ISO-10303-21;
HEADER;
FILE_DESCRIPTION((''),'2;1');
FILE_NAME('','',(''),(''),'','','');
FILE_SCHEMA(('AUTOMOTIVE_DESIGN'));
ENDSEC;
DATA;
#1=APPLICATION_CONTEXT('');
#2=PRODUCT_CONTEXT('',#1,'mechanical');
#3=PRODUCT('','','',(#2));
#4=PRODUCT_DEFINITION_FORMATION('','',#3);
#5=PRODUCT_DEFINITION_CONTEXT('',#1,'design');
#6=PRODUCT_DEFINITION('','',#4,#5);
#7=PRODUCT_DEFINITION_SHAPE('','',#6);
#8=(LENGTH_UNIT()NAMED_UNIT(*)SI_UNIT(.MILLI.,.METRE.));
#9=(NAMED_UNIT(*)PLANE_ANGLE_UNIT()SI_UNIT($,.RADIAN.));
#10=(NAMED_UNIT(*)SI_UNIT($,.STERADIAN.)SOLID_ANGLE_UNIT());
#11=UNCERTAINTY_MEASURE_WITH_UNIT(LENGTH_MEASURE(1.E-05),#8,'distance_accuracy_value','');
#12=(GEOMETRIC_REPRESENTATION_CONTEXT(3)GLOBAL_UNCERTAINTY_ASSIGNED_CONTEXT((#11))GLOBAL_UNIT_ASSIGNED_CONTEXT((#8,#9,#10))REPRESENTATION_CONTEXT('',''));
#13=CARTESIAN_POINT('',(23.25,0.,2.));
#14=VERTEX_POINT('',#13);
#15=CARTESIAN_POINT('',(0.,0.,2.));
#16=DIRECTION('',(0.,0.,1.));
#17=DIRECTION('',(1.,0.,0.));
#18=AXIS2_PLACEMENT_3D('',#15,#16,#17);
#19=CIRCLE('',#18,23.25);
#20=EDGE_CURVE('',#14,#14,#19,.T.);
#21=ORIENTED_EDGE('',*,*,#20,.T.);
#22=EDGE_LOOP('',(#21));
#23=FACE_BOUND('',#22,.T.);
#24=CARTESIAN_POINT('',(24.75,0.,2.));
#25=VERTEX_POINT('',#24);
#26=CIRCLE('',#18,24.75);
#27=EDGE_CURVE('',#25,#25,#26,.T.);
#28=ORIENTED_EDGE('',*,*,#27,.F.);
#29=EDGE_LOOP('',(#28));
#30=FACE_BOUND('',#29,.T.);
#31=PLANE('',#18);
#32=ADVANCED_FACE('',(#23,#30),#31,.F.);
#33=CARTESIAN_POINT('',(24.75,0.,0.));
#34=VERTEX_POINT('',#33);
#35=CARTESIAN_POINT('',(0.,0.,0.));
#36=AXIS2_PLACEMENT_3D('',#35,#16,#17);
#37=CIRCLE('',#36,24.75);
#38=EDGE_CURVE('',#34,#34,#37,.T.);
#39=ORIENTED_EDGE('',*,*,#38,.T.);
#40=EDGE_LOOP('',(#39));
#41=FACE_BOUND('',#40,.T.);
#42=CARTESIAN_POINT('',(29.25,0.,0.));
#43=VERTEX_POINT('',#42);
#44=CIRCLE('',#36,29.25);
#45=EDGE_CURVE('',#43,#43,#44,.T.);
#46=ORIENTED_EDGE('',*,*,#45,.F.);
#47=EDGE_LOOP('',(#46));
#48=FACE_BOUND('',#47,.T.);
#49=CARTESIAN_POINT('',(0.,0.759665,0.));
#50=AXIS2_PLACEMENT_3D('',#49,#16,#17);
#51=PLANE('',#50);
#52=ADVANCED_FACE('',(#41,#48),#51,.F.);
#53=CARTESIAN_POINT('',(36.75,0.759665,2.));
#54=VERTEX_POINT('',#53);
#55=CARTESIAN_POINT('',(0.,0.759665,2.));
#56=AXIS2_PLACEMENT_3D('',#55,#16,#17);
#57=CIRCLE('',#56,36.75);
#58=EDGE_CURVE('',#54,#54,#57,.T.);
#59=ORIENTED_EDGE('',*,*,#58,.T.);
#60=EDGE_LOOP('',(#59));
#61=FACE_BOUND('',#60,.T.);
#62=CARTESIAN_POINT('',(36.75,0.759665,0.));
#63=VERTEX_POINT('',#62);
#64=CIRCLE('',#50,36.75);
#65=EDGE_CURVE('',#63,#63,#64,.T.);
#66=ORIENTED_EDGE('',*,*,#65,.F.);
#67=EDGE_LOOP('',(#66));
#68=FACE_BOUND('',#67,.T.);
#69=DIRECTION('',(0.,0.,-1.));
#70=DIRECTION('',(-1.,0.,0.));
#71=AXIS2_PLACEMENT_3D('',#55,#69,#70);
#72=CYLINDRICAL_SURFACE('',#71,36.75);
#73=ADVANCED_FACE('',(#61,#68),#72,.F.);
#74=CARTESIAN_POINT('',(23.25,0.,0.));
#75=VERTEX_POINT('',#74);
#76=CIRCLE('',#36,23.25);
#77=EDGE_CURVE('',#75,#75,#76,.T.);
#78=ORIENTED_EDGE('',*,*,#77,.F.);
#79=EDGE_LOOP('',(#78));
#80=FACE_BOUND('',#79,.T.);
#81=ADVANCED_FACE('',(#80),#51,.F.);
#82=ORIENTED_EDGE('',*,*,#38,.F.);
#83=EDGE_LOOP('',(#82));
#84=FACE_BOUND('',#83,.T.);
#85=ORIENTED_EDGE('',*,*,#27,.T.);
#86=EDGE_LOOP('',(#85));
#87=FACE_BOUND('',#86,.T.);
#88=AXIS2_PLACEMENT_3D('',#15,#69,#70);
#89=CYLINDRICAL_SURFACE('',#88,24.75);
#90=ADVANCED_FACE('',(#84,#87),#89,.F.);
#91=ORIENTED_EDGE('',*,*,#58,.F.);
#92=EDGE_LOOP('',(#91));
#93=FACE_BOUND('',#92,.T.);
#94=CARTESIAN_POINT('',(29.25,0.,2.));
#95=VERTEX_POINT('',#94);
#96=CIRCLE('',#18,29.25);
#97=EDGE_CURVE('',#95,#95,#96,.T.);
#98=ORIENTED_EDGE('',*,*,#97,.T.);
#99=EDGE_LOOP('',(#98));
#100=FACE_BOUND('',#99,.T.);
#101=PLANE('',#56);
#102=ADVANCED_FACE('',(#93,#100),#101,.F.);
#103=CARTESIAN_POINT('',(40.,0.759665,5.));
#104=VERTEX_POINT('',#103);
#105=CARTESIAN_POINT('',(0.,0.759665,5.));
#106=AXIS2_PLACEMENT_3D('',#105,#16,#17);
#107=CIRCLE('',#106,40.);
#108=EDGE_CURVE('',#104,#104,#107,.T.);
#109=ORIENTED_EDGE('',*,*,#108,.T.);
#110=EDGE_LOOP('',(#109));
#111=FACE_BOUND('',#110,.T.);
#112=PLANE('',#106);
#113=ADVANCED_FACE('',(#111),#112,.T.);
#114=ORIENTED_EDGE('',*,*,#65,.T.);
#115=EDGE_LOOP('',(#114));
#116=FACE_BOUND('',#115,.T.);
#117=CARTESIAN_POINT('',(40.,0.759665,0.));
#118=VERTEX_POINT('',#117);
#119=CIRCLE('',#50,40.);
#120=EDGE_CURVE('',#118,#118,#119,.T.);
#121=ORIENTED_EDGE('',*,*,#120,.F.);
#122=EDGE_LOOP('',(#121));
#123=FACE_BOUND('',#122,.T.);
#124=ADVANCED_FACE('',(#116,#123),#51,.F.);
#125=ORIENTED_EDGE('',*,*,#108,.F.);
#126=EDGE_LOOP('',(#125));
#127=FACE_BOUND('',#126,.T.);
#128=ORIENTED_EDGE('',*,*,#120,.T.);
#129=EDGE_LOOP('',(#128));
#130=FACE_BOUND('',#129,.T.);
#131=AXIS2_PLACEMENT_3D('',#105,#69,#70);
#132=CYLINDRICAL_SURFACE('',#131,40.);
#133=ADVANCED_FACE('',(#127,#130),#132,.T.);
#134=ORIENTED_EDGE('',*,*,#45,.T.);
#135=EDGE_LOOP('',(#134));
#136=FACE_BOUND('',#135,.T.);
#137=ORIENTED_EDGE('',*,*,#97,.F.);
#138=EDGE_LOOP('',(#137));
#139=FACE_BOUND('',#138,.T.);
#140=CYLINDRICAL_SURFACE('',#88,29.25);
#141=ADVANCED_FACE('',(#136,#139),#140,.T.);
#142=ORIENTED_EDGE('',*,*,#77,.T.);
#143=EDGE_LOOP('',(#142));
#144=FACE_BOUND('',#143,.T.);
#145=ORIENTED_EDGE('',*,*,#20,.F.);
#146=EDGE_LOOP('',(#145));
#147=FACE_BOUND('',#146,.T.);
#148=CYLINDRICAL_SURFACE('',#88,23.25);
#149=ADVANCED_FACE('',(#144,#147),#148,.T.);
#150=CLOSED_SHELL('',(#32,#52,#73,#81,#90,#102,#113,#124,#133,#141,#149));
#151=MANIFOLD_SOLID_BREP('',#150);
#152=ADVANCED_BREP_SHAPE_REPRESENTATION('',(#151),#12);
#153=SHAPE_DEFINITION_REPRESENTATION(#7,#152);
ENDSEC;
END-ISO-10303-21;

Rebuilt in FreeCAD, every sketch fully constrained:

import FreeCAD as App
import Part
import Sketcher
Q = App.Units.Quantity

doc = App.newDocument("Part")
params = doc.addObject("Spreadsheet::Sheet", "Params")
for row, (alias, value) in enumerate([
    ("sketch1_diameter", "80 mm"),
    ("pad1_length", "5 mm"),
    ("sketch2_diameter", "73.5 mm"),
    ("sketch2_diameter2", "58.5 mm"),
    ("sketch2_diameter3", "49.5 mm"),
    ("sketch2_diameter4", "46.5 mm"),
    ("pocket1_length", "2 mm"),
], start=1):
    params.set(f"A{row}", alias)
    params.set(f"B{row}", "=" + value)
    params.setAlias(f"B{row}", alias)

body = doc.addObject("PartDesign::Body", "Body")

sketch1 = body.newObject("Sketcher::SketchObject", "Sketch")
sketch1.AttachmentSupport = (doc.getObject("XY_Plane"), [""])
sketch1.MapMode = "FlatFace"
sketch1.addGeometry(Part.Circle(App.Vector(0, 1, 0), App.Vector(0, 0, 1), 40), False)
sketch1.addConstraint([
    Sketcher.Constraint("PointOnObject", 0, 3, -2),
    Sketcher.Constraint("Diameter", 0, Q("80 mm")),
    Sketcher.Constraint("DistanceY", -1, 1, 0, 3, Q("0.759665 mm")),
])
sketch1.setExpression("Constraints[1]", "Params.sketch1_diameter")
pad1 = body.newObject("PartDesign::Pad", "Pad")
pad1.Profile = sketch1
pad1.setExpression("Length", "Params.pad1_length")

sketch2 = body.newObject("Sketcher::SketchObject", "Sketch001")
sketch2.AttachmentSupport = (doc.getObject("XY_Plane"), [""])
sketch2.MapMode = "FlatFace"
sketch2.addGeometry([
    Part.Circle(App.Vector(0, 1, 0), App.Vector(0, 0, 1), 37),
    Part.Circle(App.Vector(0, 0, 0), App.Vector(0, 0, 1), 29),
    Part.Circle(App.Vector(0, 0, 0), App.Vector(0, 0, 1), 25),
    Part.Circle(App.Vector(0, 0, 0), App.Vector(0, 0, 1), 23),
], False)
sketch2.addConstraint([
    Sketcher.Constraint("Coincident", 1, 3, -1, 1),
    Sketcher.Constraint("Coincident", 2, 3, -1, 1),
    Sketcher.Constraint("Coincident", 3, 3, -1, 1),
    Sketcher.Constraint("PointOnObject", 0, 3, -2),
    Sketcher.Constraint("Diameter", 0, Q("73.5 mm")),
    Sketcher.Constraint("Diameter", 1, Q("58.5 mm")),
    Sketcher.Constraint("Diameter", 2, Q("49.5 mm")),
    Sketcher.Constraint("Diameter", 3, Q("46.5 mm")),
    Sketcher.Constraint("DistanceY", -1, 1, 0, 3, Q("0.759665 mm")),
])
sketch2.setExpression("Constraints[4]", "Params.sketch2_diameter")
sketch2.setExpression("Constraints[5]", "Params.sketch2_diameter2")
sketch2.setExpression("Constraints[6]", "Params.sketch2_diameter3")
sketch2.setExpression("Constraints[7]", "Params.sketch2_diameter4")
pocket1 = body.newObject("PartDesign::Pocket", "Pocket")
pocket1.Profile = sketch2
pocket1.setExpression("Length", "Params.pocket1_length")
pocket1.Reversed = True

doc.recompute()
